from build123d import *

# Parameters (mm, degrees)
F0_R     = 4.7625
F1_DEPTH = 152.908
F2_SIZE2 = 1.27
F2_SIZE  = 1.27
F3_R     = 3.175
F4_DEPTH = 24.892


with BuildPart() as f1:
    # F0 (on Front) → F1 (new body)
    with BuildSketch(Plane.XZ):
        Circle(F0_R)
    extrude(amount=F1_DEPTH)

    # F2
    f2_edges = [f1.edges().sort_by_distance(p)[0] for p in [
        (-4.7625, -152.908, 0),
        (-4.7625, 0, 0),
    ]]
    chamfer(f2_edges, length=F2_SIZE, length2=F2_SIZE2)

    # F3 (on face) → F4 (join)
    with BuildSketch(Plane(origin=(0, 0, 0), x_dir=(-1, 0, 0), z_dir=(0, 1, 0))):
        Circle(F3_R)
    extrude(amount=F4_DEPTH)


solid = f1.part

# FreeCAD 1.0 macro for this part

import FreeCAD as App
import Part
import Sketcher
from FreeCAD import Vector
Q = App.Units.Quantity


def edges_at(feature, points):
    """Names of the edges that pass closest to the given points."""
    edges = feature.Shape.Edges
    near = lambda p: min(range(len(edges)), key=lambda i: edges[i].distToShape(Part.Vertex(*p))[0])
    return sorted({f"Edge{near(p) + 1}" for p in points})

doc = App.newDocument("Part")
params = doc.addObject("Spreadsheet::Sheet", "Params")
for row, (alias, value) in enumerate([
    ("sketch1_diameter", "0.375 in"),
    ("pad1_length", "6.02 in"),
    ("chamfer_size", "0.05 in"),
    ("chamfer_size2", "0.05 in"),
    ("sketch2_diameter", "0.25 in"),
    ("pad2_length", "0.98 in"),
], start=1):
    params.set(f"A{row}", alias)
    params.set(f"B{row}", "=" + value)
    params.setAlias(f"B{row}", alias)

body = doc.addObject("PartDesign::Body", "Body")

# Sketch on XZ plane
sketch1 = doc.addObject("Sketcher::SketchObject", "Sketch")
body.addObject(sketch1)
sketch1.AttachmentSupport = (doc.XZ_Plane, [""])
sketch1.MapMode = "FlatFace"
sketch1.addGeometry(Part.Circle(Vector(0, 0, 0), Vector(0, 0, 1), 4.7625), False)
sketch1.addConstraint([
    Sketcher.Constraint("Coincident", 0, 3, -1, 1),
    Sketcher.Constraint("Diameter", 0, Q("0.375 in")),
])
sketch1.setExpression("Constraints[1]", "Params.sketch1_diameter")
pad1 = doc.addObject("PartDesign::Pad", "Pad")
body.addObject(pad1)
pad1.Profile = sketch1
pad1.setExpression("Length", "Params.pad1_length")
doc.recompute()

chamfer = doc.addObject("PartDesign::Chamfer", "Chamfer")
body.addObject(chamfer)
chamfer.Base = (pad1, edges_at(pad1, [(-4.763, -152.908, 0), (-4.763, 0, 0)]))
chamfer.ChamferType = "Two distances"
chamfer.setExpression("Size", "Params.chamfer_size")
chamfer.setExpression("Size2", "Params.chamfer_size2")

# Sketch on XZ plane
sketch2 = doc.addObject("Sketcher::SketchObject", "Sketch001")
body.addObject(sketch2)
sketch2.AttachmentSupport = (doc.XZ_Plane, [""])
sketch2.MapMode = "FlatFace"
sketch2.addGeometry(Part.Circle(Vector(0, 0, 0), Vector(0, 0, 1), 3.175), False)
sketch2.addConstraint([
    Sketcher.Constraint("Coincident", 0, 3, -1, 1),
    Sketcher.Constraint("Diameter", 0, Q("0.25 in")),
])
sketch2.setExpression("Constraints[1]", "Params.sketch2_diameter")
pad2 = doc.addObject("PartDesign::Pad", "Pad001")
body.addObject(pad2)
pad2.Profile = sketch2
pad2.setExpression("Length", "Params.pad2_length")
pad2.Reversed = True

doc.recompute()
